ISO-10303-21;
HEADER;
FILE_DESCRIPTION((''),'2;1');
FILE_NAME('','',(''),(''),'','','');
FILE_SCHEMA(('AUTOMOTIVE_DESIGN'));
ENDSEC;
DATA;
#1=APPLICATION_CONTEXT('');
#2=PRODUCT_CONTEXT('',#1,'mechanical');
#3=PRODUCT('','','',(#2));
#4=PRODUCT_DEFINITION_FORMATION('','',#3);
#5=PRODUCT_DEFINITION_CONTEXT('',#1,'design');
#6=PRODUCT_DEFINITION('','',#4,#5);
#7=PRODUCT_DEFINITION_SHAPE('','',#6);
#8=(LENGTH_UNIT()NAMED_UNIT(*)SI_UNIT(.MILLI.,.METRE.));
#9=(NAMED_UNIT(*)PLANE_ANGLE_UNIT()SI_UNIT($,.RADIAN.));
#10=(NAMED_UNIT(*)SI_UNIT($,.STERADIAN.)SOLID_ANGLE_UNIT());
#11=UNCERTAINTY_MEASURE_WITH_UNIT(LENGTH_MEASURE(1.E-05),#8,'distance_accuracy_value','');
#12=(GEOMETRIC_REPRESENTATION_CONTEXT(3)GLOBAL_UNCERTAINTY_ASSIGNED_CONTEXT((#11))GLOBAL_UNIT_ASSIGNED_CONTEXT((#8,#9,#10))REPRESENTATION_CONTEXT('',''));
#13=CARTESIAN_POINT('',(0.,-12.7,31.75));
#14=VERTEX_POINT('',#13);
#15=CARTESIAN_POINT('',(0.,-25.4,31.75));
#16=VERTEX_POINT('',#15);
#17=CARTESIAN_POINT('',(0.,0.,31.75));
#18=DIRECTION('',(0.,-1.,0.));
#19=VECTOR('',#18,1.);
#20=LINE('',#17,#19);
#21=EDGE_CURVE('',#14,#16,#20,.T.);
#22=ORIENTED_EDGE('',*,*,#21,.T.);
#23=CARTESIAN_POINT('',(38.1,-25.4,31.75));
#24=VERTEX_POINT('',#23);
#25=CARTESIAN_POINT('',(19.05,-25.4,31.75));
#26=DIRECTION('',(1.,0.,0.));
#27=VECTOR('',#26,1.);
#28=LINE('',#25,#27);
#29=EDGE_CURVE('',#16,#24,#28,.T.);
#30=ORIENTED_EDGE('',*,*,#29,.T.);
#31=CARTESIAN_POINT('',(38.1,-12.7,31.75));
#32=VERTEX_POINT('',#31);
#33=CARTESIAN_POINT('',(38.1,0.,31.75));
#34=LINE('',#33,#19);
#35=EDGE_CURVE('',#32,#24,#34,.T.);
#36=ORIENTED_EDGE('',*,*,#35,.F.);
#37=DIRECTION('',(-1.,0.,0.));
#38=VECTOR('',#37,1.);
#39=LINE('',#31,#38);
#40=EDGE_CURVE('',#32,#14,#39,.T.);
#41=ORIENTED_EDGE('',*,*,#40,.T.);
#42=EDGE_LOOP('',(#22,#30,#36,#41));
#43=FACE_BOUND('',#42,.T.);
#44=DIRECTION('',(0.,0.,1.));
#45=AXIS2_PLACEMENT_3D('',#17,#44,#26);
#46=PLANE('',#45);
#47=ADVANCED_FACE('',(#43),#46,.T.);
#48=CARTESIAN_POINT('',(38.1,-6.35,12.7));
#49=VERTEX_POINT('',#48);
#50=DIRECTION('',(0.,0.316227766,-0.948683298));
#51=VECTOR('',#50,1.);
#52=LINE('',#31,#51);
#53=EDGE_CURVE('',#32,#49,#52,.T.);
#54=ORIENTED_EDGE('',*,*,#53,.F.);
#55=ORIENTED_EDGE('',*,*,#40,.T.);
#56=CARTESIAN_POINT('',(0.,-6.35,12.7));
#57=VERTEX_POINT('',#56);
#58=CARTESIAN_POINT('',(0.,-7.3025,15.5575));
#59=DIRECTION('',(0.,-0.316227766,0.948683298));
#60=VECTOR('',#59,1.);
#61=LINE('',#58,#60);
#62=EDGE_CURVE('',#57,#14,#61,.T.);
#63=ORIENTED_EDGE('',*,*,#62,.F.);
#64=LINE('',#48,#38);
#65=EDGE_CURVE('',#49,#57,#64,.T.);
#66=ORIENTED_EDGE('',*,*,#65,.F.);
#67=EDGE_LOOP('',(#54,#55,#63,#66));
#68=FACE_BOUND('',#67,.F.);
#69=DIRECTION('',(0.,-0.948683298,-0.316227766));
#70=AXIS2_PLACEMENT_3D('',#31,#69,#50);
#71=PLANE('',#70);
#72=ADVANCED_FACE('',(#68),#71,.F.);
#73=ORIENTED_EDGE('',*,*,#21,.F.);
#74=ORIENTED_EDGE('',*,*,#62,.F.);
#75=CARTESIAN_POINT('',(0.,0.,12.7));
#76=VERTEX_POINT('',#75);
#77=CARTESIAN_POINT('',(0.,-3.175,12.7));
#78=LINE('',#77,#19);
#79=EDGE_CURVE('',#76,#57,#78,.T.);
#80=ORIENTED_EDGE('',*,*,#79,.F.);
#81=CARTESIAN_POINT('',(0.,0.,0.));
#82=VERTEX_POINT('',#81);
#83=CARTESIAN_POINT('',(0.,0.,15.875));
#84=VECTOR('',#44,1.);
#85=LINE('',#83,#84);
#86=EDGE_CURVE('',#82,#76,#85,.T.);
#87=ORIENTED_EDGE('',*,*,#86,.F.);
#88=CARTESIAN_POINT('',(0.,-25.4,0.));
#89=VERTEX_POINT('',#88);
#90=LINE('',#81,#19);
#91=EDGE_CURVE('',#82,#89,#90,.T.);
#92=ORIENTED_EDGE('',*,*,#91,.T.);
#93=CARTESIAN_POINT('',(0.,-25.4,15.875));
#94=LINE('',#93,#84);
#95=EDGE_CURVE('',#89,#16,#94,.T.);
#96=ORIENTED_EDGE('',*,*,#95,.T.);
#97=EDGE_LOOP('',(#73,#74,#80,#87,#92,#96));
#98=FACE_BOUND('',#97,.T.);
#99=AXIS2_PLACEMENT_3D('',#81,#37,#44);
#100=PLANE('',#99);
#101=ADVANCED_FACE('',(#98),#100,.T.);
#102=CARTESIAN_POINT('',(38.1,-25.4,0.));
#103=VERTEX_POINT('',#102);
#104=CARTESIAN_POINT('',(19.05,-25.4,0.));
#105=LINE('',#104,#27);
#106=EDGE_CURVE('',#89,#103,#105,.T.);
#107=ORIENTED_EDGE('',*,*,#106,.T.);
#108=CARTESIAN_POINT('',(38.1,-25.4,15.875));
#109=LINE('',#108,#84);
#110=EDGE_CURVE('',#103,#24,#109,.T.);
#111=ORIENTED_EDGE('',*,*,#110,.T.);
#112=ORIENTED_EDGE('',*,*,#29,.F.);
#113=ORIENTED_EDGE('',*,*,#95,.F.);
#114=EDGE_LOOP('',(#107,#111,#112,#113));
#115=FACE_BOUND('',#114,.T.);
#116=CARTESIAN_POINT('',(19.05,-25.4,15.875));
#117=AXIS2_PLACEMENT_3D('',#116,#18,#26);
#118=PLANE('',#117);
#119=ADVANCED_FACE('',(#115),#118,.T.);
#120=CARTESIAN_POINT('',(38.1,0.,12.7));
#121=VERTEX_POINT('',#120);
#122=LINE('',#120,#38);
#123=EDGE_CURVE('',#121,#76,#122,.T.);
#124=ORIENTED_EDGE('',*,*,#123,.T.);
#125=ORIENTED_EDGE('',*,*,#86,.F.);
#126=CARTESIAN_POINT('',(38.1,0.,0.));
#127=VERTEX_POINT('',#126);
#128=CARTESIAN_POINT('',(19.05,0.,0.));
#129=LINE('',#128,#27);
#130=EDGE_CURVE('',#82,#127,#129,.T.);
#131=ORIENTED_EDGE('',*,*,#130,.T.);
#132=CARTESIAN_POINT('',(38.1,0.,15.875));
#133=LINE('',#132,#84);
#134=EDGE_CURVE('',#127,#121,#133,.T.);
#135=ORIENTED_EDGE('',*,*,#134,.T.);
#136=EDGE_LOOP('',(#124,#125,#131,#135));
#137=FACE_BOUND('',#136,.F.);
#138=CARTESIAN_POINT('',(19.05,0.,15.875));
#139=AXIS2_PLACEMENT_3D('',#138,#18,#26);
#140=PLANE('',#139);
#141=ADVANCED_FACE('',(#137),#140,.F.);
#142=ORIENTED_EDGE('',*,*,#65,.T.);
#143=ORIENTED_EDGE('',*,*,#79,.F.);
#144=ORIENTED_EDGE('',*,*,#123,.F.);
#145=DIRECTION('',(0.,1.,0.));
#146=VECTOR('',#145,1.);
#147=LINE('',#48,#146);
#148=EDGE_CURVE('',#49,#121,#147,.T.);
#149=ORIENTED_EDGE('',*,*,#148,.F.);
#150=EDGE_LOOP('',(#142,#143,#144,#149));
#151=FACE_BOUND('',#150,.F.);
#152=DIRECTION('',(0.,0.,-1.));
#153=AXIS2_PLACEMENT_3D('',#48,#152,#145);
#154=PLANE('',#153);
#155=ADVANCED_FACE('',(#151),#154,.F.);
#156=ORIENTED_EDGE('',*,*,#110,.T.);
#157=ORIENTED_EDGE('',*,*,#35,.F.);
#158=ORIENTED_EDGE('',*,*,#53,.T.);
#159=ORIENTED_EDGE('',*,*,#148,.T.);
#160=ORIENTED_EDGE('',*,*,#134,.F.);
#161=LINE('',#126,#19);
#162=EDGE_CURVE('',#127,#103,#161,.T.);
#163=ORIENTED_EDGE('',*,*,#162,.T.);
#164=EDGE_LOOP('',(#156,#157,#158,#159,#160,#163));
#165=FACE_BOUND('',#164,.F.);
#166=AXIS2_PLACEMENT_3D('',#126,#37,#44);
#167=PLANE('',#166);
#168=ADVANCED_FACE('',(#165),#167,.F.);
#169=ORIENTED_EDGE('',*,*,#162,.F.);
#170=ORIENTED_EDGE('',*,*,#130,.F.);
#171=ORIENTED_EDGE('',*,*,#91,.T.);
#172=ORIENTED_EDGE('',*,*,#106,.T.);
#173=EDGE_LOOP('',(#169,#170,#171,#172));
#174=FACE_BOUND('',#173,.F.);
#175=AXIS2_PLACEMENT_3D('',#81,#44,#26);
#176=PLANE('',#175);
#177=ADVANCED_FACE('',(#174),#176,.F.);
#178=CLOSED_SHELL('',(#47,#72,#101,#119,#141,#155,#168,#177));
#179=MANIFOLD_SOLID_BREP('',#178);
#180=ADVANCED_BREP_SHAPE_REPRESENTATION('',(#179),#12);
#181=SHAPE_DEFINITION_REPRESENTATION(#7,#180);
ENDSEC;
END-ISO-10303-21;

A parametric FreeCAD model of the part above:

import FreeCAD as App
import Part
import Sketcher

V = App.Vector
Q = App.Units.Quantity


def add_polygon(sketch, points):
    """Adds a closed chain of lines whose ends are joined by coincident constraints."""
    first, n = sketch.GeometryCount, len(points)
    for a, b in zip(points, points[1:] + points[:1]):
        sketch.addGeometry(Part.LineSegment(App.Vector(*a, 0), App.Vector(*b, 0)), False)
    for i in range(n):
        sketch.addConstraint(Sketcher.Constraint("Coincident", first + i, 2, first + (i + 1) % n, 1))

doc = App.newDocument("Part")
body = doc.addObject("PartDesign::Body", "Body")

# Sketch on XZ plane
sketch1 = body.newObject("Sketcher::SketchObject", "Sketch")
sketch1.AttachmentSupport = (doc.getObject("XZ_Plane"), [""])
sketch1.MapMode = "FlatFace"
add_polygon(sketch1, [(0, 32), (0, 0), (38, 0), (38, 32)])  # lines 0-3
sketch1.addConstraint(Sketcher.Constraint("Vertical", 0))
sketch1.addConstraint(Sketcher.Constraint("Horizontal", 1))
sketch1.addConstraint(Sketcher.Constraint("Vertical", 2))
sketch1.addConstraint(Sketcher.Constraint("Horizontal", 3))
sketch1.addConstraint(Sketcher.Constraint("Coincident", 0, 2, -1, 1))
sketch1.addConstraint(Sketcher.Constraint("DistanceX", 1, 1, 1, 2, Q("1.5 in")))
sketch1.addConstraint(Sketcher.Constraint("DistanceY", 0, 2, 0, 1, Q("1.25 in")))
pad1 = body.newObject("PartDesign::Pad", "Pad")
pad1.Profile = sketch1
pad1.Length = Q("1 in")

# Sketch on YZ plane
sketch2 = body.newObject("Sketcher::SketchObject", "Sketch001")
sketch2.AttachmentSupport = (doc.getObject("YZ_Plane"), [""])
sketch2.MapMode = "FlatFace"
sketch2.AttachmentOffset = App.Placement(V(0, 0, 1.5 * 25.4), App.Rotation())
add_polygon(sketch2, [(0, 32), (-13, 32), (-6, 13), (0, 13)])  # lines 0-3
sketch2.addConstraint(Sketcher.Constraint("Horizontal", 0))
sketch2.addConstraint(Sketcher.Constraint("Horizontal", 2))
sketch2.addConstraint(Sketcher.Constraint("Vertical", 3))
sketch2.addConstraint(Sketcher.Constraint("PointOnObject", 2, 2, -2))
sketch2.addConstraint(Sketcher.Constraint("DistanceX", 0, 2, 0, 1, Q("0.5 in")))
sketch2.addConstraint(Sketcher.Constraint("DistanceX", 2, 1, 2, 2, Q("0.25 in")))
sketch2.addConstraint(Sketcher.Constraint("DistanceY", 3, 1, 3, 2, Q("0.75 in")))
sketch2.addConstraint(Sketcher.Constraint("DistanceY", -1, 1, 1, 2, Q("0.5 in")))
pocket1 = body.newObject("PartDesign::Pocket", "Pocket")
pocket1.Profile = sketch2
pocket1.Length = Q("2 in")

doc.recompute()
